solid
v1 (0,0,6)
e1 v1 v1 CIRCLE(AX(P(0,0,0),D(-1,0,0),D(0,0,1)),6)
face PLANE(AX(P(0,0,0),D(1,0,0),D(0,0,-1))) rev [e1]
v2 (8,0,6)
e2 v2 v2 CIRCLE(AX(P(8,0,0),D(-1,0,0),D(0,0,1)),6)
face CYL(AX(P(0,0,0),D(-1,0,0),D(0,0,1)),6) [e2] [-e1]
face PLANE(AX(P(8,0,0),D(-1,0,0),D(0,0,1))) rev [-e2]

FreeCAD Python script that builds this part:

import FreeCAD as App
import Part
import Sketcher

V = App.Vector


def add_polygon(sketch, points):
    """Adds a closed chain of lines whose ends are joined by coincident constraints."""
    first, n = sketch.GeometryCount, len(points)
    for a, b in zip(points, points[1:] + points[:1]):
        sketch.addGeometry(Part.LineSegment(App.Vector(*a, 0), App.Vector(*b, 0)), False)
    for i in range(n):
        sketch.addConstraint(Sketcher.Constraint("Coincident", first + i, 2, first + (i + 1) % n, 1))

doc = App.newDocument("Part")
body = doc.addObject("PartDesign::Body", "Body")

sketch1 = body.newObject("Sketcher::SketchObject", "Sketch")
sketch1.AttachmentSupport = (doc.getObject("XY_Plane"), [""])
sketch1.MapMode = "FlatFace"
add_polygon(sketch1, [(0, 6), (0, 0), (8, 0), (8, 6)])
sketch1.addConstraint(Sketcher.Constraint("Vertical", 0))
sketch1.addConstraint(Sketcher.Constraint("Horizontal", 1))
sketch1.addConstraint(Sketcher.Constraint("Vertical", 2))
sketch1.addConstraint(Sketcher.Constraint("Horizontal", 3))
sketch1.addConstraint(Sketcher.Constraint("Coincident", 0, 2, -1, 1))
sketch1.addConstraint(Sketcher.Constraint("DistanceX", 1, 1, 1, 2, 8.0))
sketch1.addConstraint(Sketcher.Constraint("DistanceY", 0, 2, 0, 1, 6.0))
revolution = body.newObject("PartDesign::Revolution", "Revolution")
revolution.Profile = sketch1
revolution.ReferenceAxis = (sketch1, ["H_Axis"])
revolution.Angle = 360

doc.recompute()
